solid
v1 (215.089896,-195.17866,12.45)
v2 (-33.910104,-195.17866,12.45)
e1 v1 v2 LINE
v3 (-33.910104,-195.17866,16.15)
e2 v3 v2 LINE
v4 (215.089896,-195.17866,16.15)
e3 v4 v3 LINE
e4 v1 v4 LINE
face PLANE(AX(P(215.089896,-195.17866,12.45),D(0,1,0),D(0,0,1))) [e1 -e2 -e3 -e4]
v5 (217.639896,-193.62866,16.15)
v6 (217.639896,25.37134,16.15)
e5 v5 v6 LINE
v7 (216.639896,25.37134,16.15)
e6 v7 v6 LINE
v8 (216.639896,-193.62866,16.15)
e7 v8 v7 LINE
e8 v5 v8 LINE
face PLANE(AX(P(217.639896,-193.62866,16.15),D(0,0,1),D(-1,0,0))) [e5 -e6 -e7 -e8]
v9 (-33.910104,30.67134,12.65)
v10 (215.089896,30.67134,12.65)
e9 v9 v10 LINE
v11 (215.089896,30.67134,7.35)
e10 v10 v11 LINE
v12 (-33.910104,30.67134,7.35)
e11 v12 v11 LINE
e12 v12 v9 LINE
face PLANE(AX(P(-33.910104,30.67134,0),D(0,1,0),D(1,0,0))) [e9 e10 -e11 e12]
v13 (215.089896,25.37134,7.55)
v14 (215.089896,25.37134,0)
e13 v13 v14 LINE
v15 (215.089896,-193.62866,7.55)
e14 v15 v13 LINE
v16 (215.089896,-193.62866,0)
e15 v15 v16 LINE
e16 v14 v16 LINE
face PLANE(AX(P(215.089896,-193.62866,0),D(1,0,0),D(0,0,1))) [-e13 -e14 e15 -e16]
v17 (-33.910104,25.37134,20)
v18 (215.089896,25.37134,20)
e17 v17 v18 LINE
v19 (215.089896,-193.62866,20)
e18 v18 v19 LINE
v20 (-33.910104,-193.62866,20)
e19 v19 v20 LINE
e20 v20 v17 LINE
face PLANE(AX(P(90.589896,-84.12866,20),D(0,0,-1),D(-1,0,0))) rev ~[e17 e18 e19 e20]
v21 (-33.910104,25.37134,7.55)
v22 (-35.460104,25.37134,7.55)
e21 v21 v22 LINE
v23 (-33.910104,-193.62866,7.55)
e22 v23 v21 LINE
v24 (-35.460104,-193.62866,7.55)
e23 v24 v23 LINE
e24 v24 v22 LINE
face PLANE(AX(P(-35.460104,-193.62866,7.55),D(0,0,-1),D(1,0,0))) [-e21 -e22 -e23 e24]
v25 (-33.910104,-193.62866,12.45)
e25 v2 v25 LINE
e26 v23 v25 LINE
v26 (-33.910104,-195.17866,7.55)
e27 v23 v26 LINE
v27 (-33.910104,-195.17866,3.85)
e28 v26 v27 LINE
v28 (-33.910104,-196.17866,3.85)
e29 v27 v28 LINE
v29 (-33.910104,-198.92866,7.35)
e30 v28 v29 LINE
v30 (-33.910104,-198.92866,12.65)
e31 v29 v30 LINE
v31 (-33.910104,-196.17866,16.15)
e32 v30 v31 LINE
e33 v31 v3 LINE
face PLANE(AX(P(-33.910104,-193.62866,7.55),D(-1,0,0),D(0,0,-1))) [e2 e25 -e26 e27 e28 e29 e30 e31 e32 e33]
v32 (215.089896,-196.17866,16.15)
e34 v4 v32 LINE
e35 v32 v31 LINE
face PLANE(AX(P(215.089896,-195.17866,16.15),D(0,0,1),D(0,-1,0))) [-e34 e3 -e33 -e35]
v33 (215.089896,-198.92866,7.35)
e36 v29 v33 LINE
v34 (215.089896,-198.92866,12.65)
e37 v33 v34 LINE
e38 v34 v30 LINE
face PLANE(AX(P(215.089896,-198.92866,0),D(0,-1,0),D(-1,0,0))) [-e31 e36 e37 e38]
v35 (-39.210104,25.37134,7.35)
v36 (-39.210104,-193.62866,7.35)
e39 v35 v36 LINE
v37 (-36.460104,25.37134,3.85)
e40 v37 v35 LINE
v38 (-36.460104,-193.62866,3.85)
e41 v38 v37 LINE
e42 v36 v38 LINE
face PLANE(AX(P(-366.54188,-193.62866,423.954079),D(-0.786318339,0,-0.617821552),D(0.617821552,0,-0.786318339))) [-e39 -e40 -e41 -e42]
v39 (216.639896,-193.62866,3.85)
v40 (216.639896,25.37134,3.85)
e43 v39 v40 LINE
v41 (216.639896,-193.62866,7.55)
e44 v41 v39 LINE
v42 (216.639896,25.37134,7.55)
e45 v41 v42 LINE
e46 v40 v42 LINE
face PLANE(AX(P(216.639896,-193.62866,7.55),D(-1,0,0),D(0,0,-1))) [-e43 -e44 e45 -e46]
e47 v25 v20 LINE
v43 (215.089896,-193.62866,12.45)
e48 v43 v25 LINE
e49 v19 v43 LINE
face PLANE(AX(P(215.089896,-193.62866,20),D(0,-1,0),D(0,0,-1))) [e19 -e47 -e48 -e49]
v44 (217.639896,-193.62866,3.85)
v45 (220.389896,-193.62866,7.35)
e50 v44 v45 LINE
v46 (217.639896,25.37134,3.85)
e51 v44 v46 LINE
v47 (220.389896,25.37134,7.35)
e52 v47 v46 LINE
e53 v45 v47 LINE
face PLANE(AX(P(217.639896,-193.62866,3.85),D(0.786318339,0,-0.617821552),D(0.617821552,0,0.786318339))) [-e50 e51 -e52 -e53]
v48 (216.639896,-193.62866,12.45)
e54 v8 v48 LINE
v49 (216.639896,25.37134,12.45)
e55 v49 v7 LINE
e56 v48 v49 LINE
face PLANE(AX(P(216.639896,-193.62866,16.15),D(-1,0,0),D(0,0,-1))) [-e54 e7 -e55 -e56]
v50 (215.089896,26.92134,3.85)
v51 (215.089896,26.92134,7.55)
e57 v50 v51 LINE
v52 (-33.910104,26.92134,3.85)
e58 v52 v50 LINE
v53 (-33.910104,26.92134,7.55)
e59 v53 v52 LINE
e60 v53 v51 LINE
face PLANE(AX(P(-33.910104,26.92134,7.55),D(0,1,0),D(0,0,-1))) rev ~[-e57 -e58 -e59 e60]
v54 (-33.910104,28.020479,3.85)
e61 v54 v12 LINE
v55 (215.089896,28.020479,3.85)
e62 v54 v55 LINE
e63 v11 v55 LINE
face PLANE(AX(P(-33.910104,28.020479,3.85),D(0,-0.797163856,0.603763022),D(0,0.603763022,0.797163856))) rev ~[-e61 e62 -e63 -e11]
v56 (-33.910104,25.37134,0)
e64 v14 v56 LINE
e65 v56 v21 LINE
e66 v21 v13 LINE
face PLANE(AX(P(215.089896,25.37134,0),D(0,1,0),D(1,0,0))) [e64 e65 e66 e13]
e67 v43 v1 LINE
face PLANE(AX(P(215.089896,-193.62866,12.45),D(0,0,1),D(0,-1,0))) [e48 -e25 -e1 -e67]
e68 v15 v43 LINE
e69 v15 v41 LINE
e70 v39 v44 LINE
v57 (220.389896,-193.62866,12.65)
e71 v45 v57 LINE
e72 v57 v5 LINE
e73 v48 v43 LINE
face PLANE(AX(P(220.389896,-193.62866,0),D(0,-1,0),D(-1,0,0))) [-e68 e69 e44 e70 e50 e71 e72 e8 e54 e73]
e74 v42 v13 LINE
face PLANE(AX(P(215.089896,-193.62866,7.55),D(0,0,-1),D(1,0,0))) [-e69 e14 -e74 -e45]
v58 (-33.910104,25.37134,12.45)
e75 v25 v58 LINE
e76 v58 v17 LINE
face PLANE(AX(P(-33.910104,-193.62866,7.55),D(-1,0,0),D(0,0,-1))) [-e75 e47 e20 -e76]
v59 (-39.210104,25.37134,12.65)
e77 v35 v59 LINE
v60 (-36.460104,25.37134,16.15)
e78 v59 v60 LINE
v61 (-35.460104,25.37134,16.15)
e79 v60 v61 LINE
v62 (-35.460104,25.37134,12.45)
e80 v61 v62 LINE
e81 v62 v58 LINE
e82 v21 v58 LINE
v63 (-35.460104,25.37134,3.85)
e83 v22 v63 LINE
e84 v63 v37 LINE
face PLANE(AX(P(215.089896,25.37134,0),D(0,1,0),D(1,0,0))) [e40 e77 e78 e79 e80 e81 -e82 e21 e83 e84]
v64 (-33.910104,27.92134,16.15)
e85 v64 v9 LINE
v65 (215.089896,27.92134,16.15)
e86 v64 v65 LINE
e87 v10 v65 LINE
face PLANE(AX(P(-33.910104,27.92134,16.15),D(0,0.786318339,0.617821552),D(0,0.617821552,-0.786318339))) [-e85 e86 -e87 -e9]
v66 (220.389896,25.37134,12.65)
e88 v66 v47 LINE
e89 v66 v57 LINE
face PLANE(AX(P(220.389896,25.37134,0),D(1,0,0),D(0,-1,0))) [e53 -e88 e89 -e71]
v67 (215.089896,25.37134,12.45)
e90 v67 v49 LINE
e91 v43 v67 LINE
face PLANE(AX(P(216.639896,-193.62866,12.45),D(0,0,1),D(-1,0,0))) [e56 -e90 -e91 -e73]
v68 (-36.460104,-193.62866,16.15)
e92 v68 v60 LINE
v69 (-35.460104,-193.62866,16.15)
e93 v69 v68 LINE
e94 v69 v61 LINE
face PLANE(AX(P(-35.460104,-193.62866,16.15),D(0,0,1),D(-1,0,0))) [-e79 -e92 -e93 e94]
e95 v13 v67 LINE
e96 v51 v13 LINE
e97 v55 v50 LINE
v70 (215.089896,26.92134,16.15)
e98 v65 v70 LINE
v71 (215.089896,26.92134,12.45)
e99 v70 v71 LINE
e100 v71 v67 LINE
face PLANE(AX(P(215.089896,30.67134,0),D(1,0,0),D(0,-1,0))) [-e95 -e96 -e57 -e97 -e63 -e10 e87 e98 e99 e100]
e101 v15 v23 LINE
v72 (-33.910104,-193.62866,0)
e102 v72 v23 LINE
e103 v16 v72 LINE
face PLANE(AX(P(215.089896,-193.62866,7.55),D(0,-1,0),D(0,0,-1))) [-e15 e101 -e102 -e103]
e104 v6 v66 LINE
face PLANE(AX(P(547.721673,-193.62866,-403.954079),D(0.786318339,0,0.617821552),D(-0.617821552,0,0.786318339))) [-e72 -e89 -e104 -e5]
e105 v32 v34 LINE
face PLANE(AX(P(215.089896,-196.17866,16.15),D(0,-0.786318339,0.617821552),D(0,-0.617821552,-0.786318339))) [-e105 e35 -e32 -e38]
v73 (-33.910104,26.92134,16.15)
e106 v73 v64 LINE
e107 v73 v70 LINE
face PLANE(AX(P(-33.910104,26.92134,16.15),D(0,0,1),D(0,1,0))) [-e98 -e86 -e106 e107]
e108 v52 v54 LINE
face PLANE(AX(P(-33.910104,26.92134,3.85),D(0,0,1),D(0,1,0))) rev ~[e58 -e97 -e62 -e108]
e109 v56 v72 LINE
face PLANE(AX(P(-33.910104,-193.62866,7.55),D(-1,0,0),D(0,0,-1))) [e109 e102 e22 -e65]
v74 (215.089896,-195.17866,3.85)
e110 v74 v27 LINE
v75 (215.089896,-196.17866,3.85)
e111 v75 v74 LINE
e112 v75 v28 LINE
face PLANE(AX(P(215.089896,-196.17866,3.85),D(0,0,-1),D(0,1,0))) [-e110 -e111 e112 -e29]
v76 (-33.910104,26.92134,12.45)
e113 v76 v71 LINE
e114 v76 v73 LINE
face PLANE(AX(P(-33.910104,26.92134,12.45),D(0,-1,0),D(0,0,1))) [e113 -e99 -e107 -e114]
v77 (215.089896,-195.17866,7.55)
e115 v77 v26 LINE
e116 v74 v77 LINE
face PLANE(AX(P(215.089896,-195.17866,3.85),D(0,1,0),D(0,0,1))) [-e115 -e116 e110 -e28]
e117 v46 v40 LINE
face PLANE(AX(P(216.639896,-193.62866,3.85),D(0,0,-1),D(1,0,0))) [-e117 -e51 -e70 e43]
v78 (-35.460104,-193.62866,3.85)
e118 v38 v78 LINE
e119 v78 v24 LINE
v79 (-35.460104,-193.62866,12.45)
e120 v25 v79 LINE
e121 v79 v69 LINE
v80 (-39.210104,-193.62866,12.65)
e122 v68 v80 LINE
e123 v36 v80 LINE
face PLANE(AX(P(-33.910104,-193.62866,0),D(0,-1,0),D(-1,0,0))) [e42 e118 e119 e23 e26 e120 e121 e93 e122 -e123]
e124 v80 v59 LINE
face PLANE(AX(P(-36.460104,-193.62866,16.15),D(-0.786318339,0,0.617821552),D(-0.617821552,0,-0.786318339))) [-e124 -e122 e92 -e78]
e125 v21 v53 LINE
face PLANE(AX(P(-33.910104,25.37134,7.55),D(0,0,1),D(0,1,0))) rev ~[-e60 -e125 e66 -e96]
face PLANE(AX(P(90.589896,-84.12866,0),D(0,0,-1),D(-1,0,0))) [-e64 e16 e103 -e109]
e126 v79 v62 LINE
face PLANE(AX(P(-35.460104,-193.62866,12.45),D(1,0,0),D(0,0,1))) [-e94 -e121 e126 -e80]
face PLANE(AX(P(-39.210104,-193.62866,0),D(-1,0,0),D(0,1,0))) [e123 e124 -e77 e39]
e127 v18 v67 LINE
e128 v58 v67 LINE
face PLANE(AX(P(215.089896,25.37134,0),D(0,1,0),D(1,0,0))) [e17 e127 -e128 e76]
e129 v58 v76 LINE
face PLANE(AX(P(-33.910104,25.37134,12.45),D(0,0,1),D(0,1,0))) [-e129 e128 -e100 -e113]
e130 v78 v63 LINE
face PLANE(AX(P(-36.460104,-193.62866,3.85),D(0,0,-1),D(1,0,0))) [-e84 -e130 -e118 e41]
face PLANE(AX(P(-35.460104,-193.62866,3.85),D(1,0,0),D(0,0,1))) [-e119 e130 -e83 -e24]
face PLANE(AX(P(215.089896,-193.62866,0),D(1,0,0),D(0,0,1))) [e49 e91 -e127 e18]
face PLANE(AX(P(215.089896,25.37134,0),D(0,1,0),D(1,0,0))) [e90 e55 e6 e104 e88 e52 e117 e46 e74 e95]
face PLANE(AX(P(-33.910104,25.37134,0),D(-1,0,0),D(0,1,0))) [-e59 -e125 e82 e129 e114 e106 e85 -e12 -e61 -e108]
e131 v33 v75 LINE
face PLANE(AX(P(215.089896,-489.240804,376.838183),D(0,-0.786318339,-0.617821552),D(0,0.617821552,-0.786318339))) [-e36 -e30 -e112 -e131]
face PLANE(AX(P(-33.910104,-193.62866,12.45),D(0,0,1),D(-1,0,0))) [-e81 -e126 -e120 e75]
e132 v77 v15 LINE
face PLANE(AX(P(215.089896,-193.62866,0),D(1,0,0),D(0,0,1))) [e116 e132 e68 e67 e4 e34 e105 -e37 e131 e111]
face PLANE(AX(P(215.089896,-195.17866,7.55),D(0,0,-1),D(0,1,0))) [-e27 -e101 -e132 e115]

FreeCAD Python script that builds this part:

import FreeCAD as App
import Part
import Sketcher
from FreeCAD import Vector
Q = App.Units.Quantity

doc = App.newDocument("Part")
body = doc.addObject("PartDesign::Body", "Body")

# Sketch on XY plane
sketch1 = body.newObject("Sketcher::SketchObject", "Sketch")
sketch1.AttachmentSupport = (doc.getObject("XY_Plane"), [""])
sketch1.MapMode = "FlatFace"
sketch1.addGeometry([
    Part.LineSegment(Vector(215, 31, 0), Vector(-34, 31, 0)),  # 0
    Part.LineSegment(Vector(-34, 31, 0), Vector(-34, 25, 0)),  # 1
    Part.LineSegment(Vector(-34, 25, 0), Vector(-39, 25, 0)),  # 2
    Part.LineSegment(Vector(-39, 25, 0), Vector(-39, -194, 0)),  # 3
    Part.LineSegment(Vector(-39, -194, 0), Vector(-34, -194, 0)),  # 4
    Part.LineSegment(Vector(-34, -194, 0), Vector(-34, -199, 0)),  # 5
    Part.LineSegment(Vector(-34, -199, 0), Vector(215, -199, 0)),  # 6
    Part.LineSegment(Vector(215, -199, 0), Vector(215, -194, 0)),  # 7
    Part.LineSegment(Vector(215, -194, 0), Vector(220, -194, 0)),  # 8
    Part.LineSegment(Vector(220, -194, 0), Vector(220, 25, 0)),  # 9
    Part.LineSegment(Vector(220, 25, 0), Vector(215, 25, 0)),  # 10
    Part.LineSegment(Vector(215, 25, 0), Vector(215, 31, 0)),  # 11
], False)
sketch1.addConstraint([
    Sketcher.Constraint("Coincident", 0, 2, 1, 1),
    Sketcher.Constraint("Coincident", 1, 2, 2, 1),
    Sketcher.Constraint("Coincident", 2, 2, 3, 1),
    Sketcher.Constraint("Coincident", 3, 2, 4, 1),
    Sketcher.Constraint("Coincident", 4, 2, 5, 1),
    Sketcher.Constraint("Coincident", 5, 2, 6, 1),
    Sketcher.Constraint("Coincident", 6, 2, 7, 1),
    Sketcher.Constraint("Coincident", 7, 2, 8, 1),
    Sketcher.Constraint("Coincident", 8, 2, 9, 1),
    Sketcher.Constraint("Coincident", 9, 2, 10, 1),
    Sketcher.Constraint("Coincident", 10, 2, 11, 1),
    Sketcher.Constraint("Coincident", 11, 2, 0, 1),
    Sketcher.Constraint("Horizontal", 0),
    Sketcher.Constraint("Vertical", 1),
    Sketcher.Constraint("Horizontal", 2),
    Sketcher.Constraint("Vertical", 3),
    Sketcher.Constraint("Horizontal", 4),
    Sketcher.Constraint("Vertical", 5),
    Sketcher.Constraint("Horizontal", 6),
    Sketcher.Constraint("Vertical", 7),
    Sketcher.Constraint("Horizontal", 8),
    Sketcher.Constraint("Vertical", 9),
    Sketcher.Constraint("Horizontal", 10),
    Sketcher.Constraint("Vertical", 11),
    Sketcher.Constraint("Horizontal", 4, 2, 7, 2),
    Sketcher.Constraint("Horizontal", 2, 2, 9, 2),
    Sketcher.Constraint("Vertical", 1, 2, 4, 2),
    Sketcher.Constraint("Vertical", 7, 2, 10, 2),
    Sketcher.Constraint("Equal", 4, 8),
    Sketcher.Constraint("Equal", 10, 1),
    Sketcher.Constraint("Equal", 1, 5),
    Sketcher.Constraint("DistanceX", 0, 2, 0, 1, Q("249 mm")),
    Sketcher.Constraint("DistanceY", 3, 2, 3, 1, Q("219 mm")),
    Sketcher.Constraint("DistanceX", 2, 2, 2, 1, Q("5.3 mm")),
    Sketcher.Constraint("DistanceY", -1, 1, 0, 2, Q("30.67134 mm")),
    Sketcher.Constraint("DistanceX", 0, 2, -1, 1, Q("33.910104 mm")),
])
pad1 = body.newObject("PartDesign::Pad", "Pad")
pad1.Profile = sketch1
pad1.Length = 20

# Sketch on YZ plane
sketch2 = body.newObject("Sketcher::SketchObject", "Sketch001")
sketch2.AttachmentSupport = (doc.getObject("YZ_Plane"), [""])
sketch2.MapMode = "FlatFace"
sketch2.AttachmentOffset = App.Placement(Vector(0, 0, 215.089896), App.Rotation())
sketch2.addGeometry([
    Part.LineSegment(Vector(25.4, 489.9, 0), Vector(25.4, 12.4, 0)),  # 0
    Part.LineSegment(Vector(25.4, 12.4, 0), Vector(26.9, 12.4, 0)),  # 1
    Part.LineSegment(Vector(26.9, 12.4, 0), Vector(26.9, 16.1, 0)),  # 2
    Part.LineSegment(Vector(26.9, 16.1, 0), Vector(27.9, 16.1, 0)),  # 3
    Part.LineSegment(Vector(27.9, 16.1, 0), Vector(321, -356.8, 0)),  # 4
    Part.LineSegment(Vector(321, -356.8, 0), Vector(1208.3, -47.1, 0)),  # 5
    Part.LineSegment(Vector(1208.3, -47.1, 0), Vector(912.6, 799.7, 0)),  # 6
    Part.LineSegment(Vector(912.6, 799.7, 0), Vector(25.4, 489.9, 0)),  # 7
], False)
sketch2.addConstraint([
    Sketcher.Constraint("Coincident", 0, 2, 1, 1),
    Sketcher.Constraint("Coincident", 1, 2, 2, 1),
    Sketcher.Constraint("Coincident", 2, 2, 3, 1),
    Sketcher.Constraint("Coincident", 3, 2, 4, 1),
    Sketcher.Constraint("Coincident", 4, 2, 5, 1),
    Sketcher.Constraint("Coincident", 5, 2, 6, 1),
    Sketcher.Constraint("Coincident", 6, 2, 7, 1),
    Sketcher.Constraint("Coincident", 7, 2, 0, 1),
    Sketcher.Constraint("Vertical", 0),
    Sketcher.Constraint("Horizontal", 1),
    Sketcher.Constraint("Vertical", 2),
    Sketcher.Constraint("Horizontal", 3),
    Sketcher.Constraint("Perpendicular", 5, 6),
    Sketcher.Constraint("Perpendicular", 6, 7),
    Sketcher.Constraint("Equal", 5, 7),
    Sketcher.Constraint("DistanceX", 3, 1, 3, 2, Q("1 mm")),
    Sketcher.Constraint("DistanceY", 2, 1, 2, 2, Q("3.7 mm")),
    Sketcher.Constraint("DistanceX", 1, 1, 1, 2, Q("1.55 mm")),
    Sketcher.Constraint("DistanceY", -1, 1, 0, 2, Q("12.45 mm")),
    Sketcher.Constraint("DistanceY", 0, 2, 0, 1, Q("477.446434 mm")),
    Sketcher.Constraint("DistanceX", -1, 1, 0, 2, Q("25.37134 mm")),
    Sketcher.Constraint("DistanceX", -1, 1, 5, 2, Q("1208.25797 mm")),
    Sketcher.Constraint("DistanceY", 4, 2, 5, 2, Q("309.76543 mm")),
    Sketcher.Constraint("Distance", 4, Q("474.347557 mm")),
])
pocket1 = body.newObject("PartDesign::Pocket", "Pocket")
pocket1.Profile = sketch2
pocket1.Type = "ThroughAll"
pocket1.Midplane = True

# Sketch on YZ plane
sketch3 = body.newObject("Sketcher::SketchObject", "Sketch002")
sketch3.AttachmentSupport = (doc.getObject("YZ_Plane"), [""])
sketch3.MapMode = "FlatFace"
sketch3.AttachmentOffset = App.Placement(Vector(0, 0, 215.089896), App.Rotation())
sketch3.addGeometry([
    Part.LineSegment(Vector(25.4, 7.5, 0), Vector(25.4, -469.9, 0)),  # 0
    Part.LineSegment(Vector(25.4, -469.9, 0), Vector(915.3, -771.8, 0)),  # 1
    Part.LineSegment(Vector(915.3, -771.8, 0), Vector(1204.3, 80, 0)),  # 2
    Part.LineSegment(Vector(1204.3, 80, 0), Vector(314.4, 381.9, 0)),  # 3
    Part.LineSegment(Vector(314.4, 381.9, 0), Vector(30.7, 7.3, 0)),  # 4
    Part.LineSegment(Vector(30.7, 7.3, 0), Vector(28, 3.9, 0)),  # 5
    Part.LineSegment(Vector(28, 3.9, 0), Vector(26.9, 3.9, 0)),  # 6
    Part.LineSegment(Vector(26.9, 3.9, 0), Vector(26.9, 7.5, 0)),  # 7
    Part.LineSegment(Vector(26.9, 7.5, 0), Vector(25.4, 7.5, 0)),  # 8
], False)
sketch3.addConstraint([
    Sketcher.Constraint("Coincident", 0, 2, 1, 1),
    Sketcher.Constraint("Coincident", 1, 2, 2, 1),
    Sketcher.Constraint("Coincident", 2, 2, 3, 1),
    Sketcher.Constraint("Coincident", 3, 2, 4, 1),
    Sketcher.Constraint("Coincident", 4, 2, 5, 1),
    Sketcher.Constraint("Coincident", 5, 2, 6, 1),
    Sketcher.Constraint("Coincident", 6, 2, 7, 1),
    Sketcher.Constraint("Coincident", 7, 2, 8, 1),
    Sketcher.Constraint("Coincident", 8, 2, 0, 1),
    Sketcher.Constraint("Vertical", 0),
    Sketcher.Constraint("Horizontal", 6),
    Sketcher.Constraint("Vertical", 7),
    Sketcher.Constraint("Horizontal", 8),
    Sketcher.Constraint("Perpendicular", 1, 2),
    Sketcher.Constraint("Perpendicular", 2, 3),
    Sketcher.Constraint("Parallel", 4, 5),
    Sketcher.Constraint("Equal", 1, 3),
    Sketcher.Constraint("DistanceY", 7, 1, 7, 2, Q("3.7 mm")),
    Sketcher.Constraint("DistanceX", 8, 2, 8, 1, Q("1.55 mm")),
    Sketcher.Constraint("DistanceX", 0, 2, 4, 2, Q("5.3 mm")),
    Sketcher.Constraint("DistanceY", 5, 2, 4, 2, Q("3.5 mm")),
    Sketcher.Constraint("DistanceY", -1, 1, 4, 2, Q("7.35 mm")),
    Sketcher.Constraint("DistanceX", 6, 2, 6, 1, Q("1.099139 mm")),
    Sketcher.Constraint("DistanceX", -1, 1, 1, 2, Q("915.337699 mm")),
    Sketcher.Constraint("DistanceY", -1, 1, 2, 2, Q("79.989898 mm")),
    Sketcher.Constraint("DistanceY", 0, 2, 0, 1, Q("477.446434 mm")),
    Sketcher.Constraint("DistanceX", -1, 1, 0, 2, Q("25.37134 mm")),
])
pocket2 = body.newObject("PartDesign::Pocket", "Pocket001")
pocket2.Profile = sketch3
pocket2.Type = "ThroughAll"
pocket2.Midplane = True

# Sketch on XZ plane
sketch4 = body.newObject("Sketcher::SketchObject", "Sketch003")
sketch4.AttachmentSupport = (doc.getObject("XZ_Plane"), [""])
sketch4.MapMode = "FlatFace"
sketch4.AttachmentOffset = App.Placement(Vector(0, 0, -25.37134), App.Rotation())
sketch4.addGeometry([
    Part.LineSegment(Vector(215.1, 0, 0), Vector(215.1, 7.5, 0)),  # 0
    Part.LineSegment(Vector(215.1, 7.5, 0), Vector(216.6, 7.5, 0)),  # 1
    Part.LineSegment(Vector(216.6, 7.5, 0), Vector(216.6, 3.9, 0)),  # 2
    Part.LineSegment(Vector(216.6, 3.9, 0), Vector(217.6, 3.9, 0)),  # 3
    Part.LineSegment(Vector(217.6, 3.9, 0), Vector(220.4, 7.3, 0)),  # 4
    Part.LineSegment(Vector(220.4, 7.3, 0), Vector(220.4, 0, 0)),  # 5
    Part.LineSegment(Vector(220.4, 0, 0), Vector(215.1, 0, 0)),  # 6
], False)
sketch4.addConstraint([
    Sketcher.Constraint("Coincident", 0, 2, 1, 1),
    Sketcher.Constraint("Coincident", 1, 2, 2, 1),
    Sketcher.Constraint("Coincident", 2, 2, 3, 1),
    Sketcher.Constraint("Coincident", 3, 2, 4, 1),
    Sketcher.Constraint("Coincident", 4, 2, 5, 1),
    Sketcher.Constraint("Coincident", 5, 2, 6, 1),
    Sketcher.Constraint("Coincident", 6, 2, 0, 1),
    Sketcher.Constraint("Vertical", 0),
    Sketcher.Constraint("Horizontal", 1),
    Sketcher.Constraint("Vertical", 2),
    Sketcher.Constraint("Horizontal", 3),
    Sketcher.Constraint("Vertical", 5),
    Sketcher.Constraint("Horizontal", 6),
    Sketcher.Constraint("PointOnObject", 5, 2, -1),
    Sketcher.Constraint("DistanceX", 3, 1, 3, 2, Q("1 mm")),
    Sketcher.Constraint("DistanceX", 6, 2, 6, 1, Q("5.3 mm")),
    Sketcher.Constraint("DistanceY", 2, 2, 2, 1, Q("3.7 mm")),
    Sketcher.Constraint("DistanceX", 1, 1, 1, 2, Q("1.55 mm")),
    Sketcher.Constraint("DistanceY", 0, 1, 0, 2, Q("7.55 mm")),
    Sketcher.Constraint("DistanceY", 5, 2, 5, 1, Q("7.35 mm")),
    Sketcher.Constraint("DistanceX", -1, 1, 0, 2, Q("215.089896 mm")),
])
pocket3 = body.newObject("PartDesign::Pocket", "Pocket002")
pocket3.Profile = sketch4
pocket3.Type = "ThroughAll"
pocket3.Midplane = True

# Sketch on XZ plane
sketch5 = body.newObject("Sketcher::SketchObject", "Sketch004")
sketch5.AttachmentSupport = (doc.getObject("XZ_Plane"), [""])
sketch5.MapMode = "FlatFace"
sketch5.AttachmentOffset = App.Placement(Vector(0, 0, -25.37134), App.Rotation())
sketch5.addGeometry([
    Part.LineSegment(Vector(547.7, -404, 0), Vector(217.6, 16.1, 0)),  # 0
    Part.LineSegment(Vector(217.6, 16.1, 0), Vector(216.6, 16.1, 0)),  # 1
    Part.LineSegment(Vector(216.6, 16.1, 0), Vector(216.6, 12.4, 0)),  # 2
    Part.LineSegment(Vector(216.6, 12.4, 0), Vector(215.1, 12.4, 0)),  # 3
    Part.LineSegment(Vector(215.1, 12.4, 0), Vector(215.1, 549.8, 0)),  # 4
    Part.LineSegment(Vector(215.1, 549.8, 0), Vector(1215.6, 898.8, 0)),  # 5
    Part.LineSegment(Vector(1215.6, 898.8, 0), Vector(1548.3, -55, 0)),  # 6
    Part.LineSegment(Vector(1548.3, -55, 0), Vector(547.7, -404, 0)),  # 7
], False)
sketch5.addConstraint([
    Sketcher.Constraint("Coincident", 0, 2, 1, 1),
    Sketcher.Constraint("Coincident", 1, 2, 2, 1),
    Sketcher.Constraint("Coincident", 2, 2, 3, 1),
    Sketcher.Constraint("Coincident", 3, 2, 4, 1),
    Sketcher.Constraint("Coincident", 4, 2, 5, 1),
    Sketcher.Constraint("Coincident", 5, 2, 6, 1),
    Sketcher.Constraint("Coincident", 6, 2, 7, 1),
    Sketcher.Constraint("Coincident", 7, 2, 0, 1),
    Sketcher.Constraint("Horizontal", 1),
    Sketcher.Constraint("Vertical", 2),
    Sketcher.Constraint("Horizontal", 3),
    Sketcher.Constraint("Vertical", 4),
    Sketcher.Constraint("Perpendicular", 5, 6),
    Sketcher.Constraint("Perpendicular", 6, 7),
    Sketcher.Constraint("Equal", 5, 7),
    Sketcher.Constraint("DistanceX", 1, 2, 1, 1, Q("1 mm")),
    Sketcher.Constraint("DistanceY", 2, 2, 2, 1, Q("3.7 mm")),
    Sketcher.Constraint("DistanceX", 3, 2, 3, 1, Q("1.55 mm")),
    Sketcher.Constraint("DistanceY", -1, 1, 0, 2, Q("16.15 mm")),
    Sketcher.Constraint("Distance", 5, Q("1059.632108 mm")),
    Sketcher.Constraint("Distance", 6, Q("1010.109581 mm")),
    Sketcher.Constraint("DistanceY", 4, 1, 4, 2, Q("537.366054 mm")),
    Sketcher.Constraint("DistanceX", -1, 1, 5, 2, Q("1215.620409 mm")),
    Sketcher.Constraint("DistanceY", -1, 1, 5, 2, Q("898.755731 mm")),
])
pocket4 = body.newObject("PartDesign::Pocket", "Pocket003")
pocket4.Profile = sketch5
pocket4.Type = "ThroughAll"
pocket4.Midplane = True

# Sketch on XZ plane
sketch6 = body.newObject("Sketcher::SketchObject", "Sketch005")
sketch6.AttachmentSupport = (doc.getObject("XZ_Plane"), [""])
sketch6.MapMode = "FlatFace"
sketch6.AttachmentOffset = App.Placement(Vector(0, 0, -25.37134), App.Rotation())
sketch6.addGeometry([
    Part.LineSegment(Vector(-33.9, 20, 0), Vector(-33.9, 12.4, 0)),  # 0
    Part.LineSegment(Vector(-33.9, 12.4, 0), Vector(-35.5, 12.4, 0)),  # 1
    Part.LineSegment(Vector(-35.5, 12.4, 0), Vector(-35.5, 16.1, 0)),  # 2
    Part.LineSegment(Vector(-35.5, 16.1, 0), Vector(-36.5, 16.1, 0)),  # 3
    Part.LineSegment(Vector(-36.5, 16.1, 0), Vector(-39.2, 12.7, 0)),  # 4
    Part.LineSegment(Vector(-39.2, 12.7, 0), Vector(-39.2, 20, 0)),  # 5
    Part.LineSegment(Vector(-39.2, 20, 0), Vector(-33.9, 20, 0)),  # 6
], False)
sketch6.addConstraint([
    Sketcher.Constraint("Coincident", 0, 2, 1, 1),
    Sketcher.Constraint("Coincident", 1, 2, 2, 1),
    Sketcher.Constraint("Coincident", 2, 2, 3, 1),
    Sketcher.Constraint("Coincident", 3, 2, 4, 1),
    Sketcher.Constraint("Coincident", 4, 2, 5, 1),
    Sketcher.Constraint("Coincident", 5, 2, 6, 1),
    Sketcher.Constraint("Coincident", 6, 2, 0, 1),
    Sketcher.Constraint("Vertical", 0),
    Sketcher.Constraint("Horizontal", 1),
    Sketcher.Constraint("Vertical", 2),
    Sketcher.Constraint("Horizontal", 3),
    Sketcher.Constraint("Vertical", 5),
    Sketcher.Constraint("Horizontal", 6),
    Sketcher.Constraint("DistanceX", 3, 2, 3, 1, Q("1 mm")),
    Sketcher.Constraint("DistanceX", 6, 1, 6, 2, Q("5.3 mm")),
    Sketcher.Constraint("DistanceY", 2, 1, 2, 2, Q("3.7 mm")),
    Sketcher.Constraint("DistanceY", -1, 1, 5, 2, Q("20 mm")),
    Sketcher.Constraint("DistanceX", 1, 2, 1, 1, Q("1.55 mm")),
    Sketcher.Constraint("DistanceY", 0, 2, 0, 1, Q("7.55 mm")),
    Sketcher.Constraint("DistanceY", 5, 1, 5, 2, Q("7.35 mm")),
    Sketcher.Constraint("DistanceX", 0, 2, -1, 1, Q("33.910104 mm")),
])
pocket5 = body.newObject("PartDesign::Pocket", "Pocket004")
pocket5.Profile = sketch6
pocket5.Type = "ThroughAll"
pocket5.Midplane = True

# Sketch on XZ plane
sketch7 = body.newObject("Sketcher::SketchObject", "Sketch006")
sketch7.AttachmentSupport = (doc.getObject("XZ_Plane"), [""])
sketch7.MapMode = "FlatFace"
sketch7.AttachmentOffset = App.Placement(Vector(0, 0, -25.37134), App.Rotation())
sketch7.addGeometry([
    Part.LineSegment(Vector(-366.5, 424, 0), Vector(-36.5, 3.9, 0)),  # 0
    Part.LineSegment(Vector(-36.5, 3.9, 0), Vector(-35.5, 3.9, 0)),  # 1
    Part.LineSegment(Vector(-35.5, 3.9, 0), Vector(-35.5, 7.5, 0)),  # 2
    Part.LineSegment(Vector(-35.5, 7.5, 0), Vector(-33.9, 7.5, 0)),  # 3
    Part.LineSegment(Vector(-33.9, 7.5, 0), Vector(-33.9, -529.8, 0)),  # 4
    Part.LineSegment(Vector(-33.9, -529.8, 0), Vector(-1034.4, -878.8, 0)),  # 5
    Part.LineSegment(Vector(-1034.4, -878.8, 0), Vector(-1367.1, 75, 0)),  # 6
    Part.LineSegment(Vector(-1367.1, 75, 0), Vector(-366.5, 424, 0)),  # 7
], False)
sketch7.addConstraint([
    Sketcher.Constraint("Coincident", 0, 2, 1, 1),
    Sketcher.Constraint("Coincident", 1, 2, 2, 1),
    Sketcher.Constraint("Coincident", 2, 2, 3, 1),
    Sketcher.Constraint("Coincident", 3, 2, 4, 1),
    Sketcher.Constraint("Coincident", 4, 2, 5, 1),
    Sketcher.Constraint("Coincident", 5, 2, 6, 1),
    Sketcher.Constraint("Coincident", 6, 2, 7, 1),
    Sketcher.Constraint("Coincident", 7, 2, 0, 1),
    Sketcher.Constraint("Horizontal", 1),
    Sketcher.Constraint("Vertical", 2),
    Sketcher.Constraint("Horizontal", 3),
    Sketcher.Constraint("Vertical", 4),
    Sketcher.Constraint("Perpendicular", 5, 6),
    Sketcher.Constraint("Perpendicular", 6, 7),
    Sketcher.Constraint("Equal", 5, 7),
    Sketcher.Constraint("DistanceX", 1, 1, 1, 2, Q("1 mm")),
    Sketcher.Constraint("DistanceY", 2, 1, 2, 2, Q("3.7 mm")),
    Sketcher.Constraint("DistanceX", 3, 1, 3, 2, Q("1.55 mm")),
    Sketcher.Constraint("DistanceY", -1, 1, 0, 2, Q("3.85 mm")),
    Sketcher.Constraint("Distance", 5, Q("1059.632108 mm")),
    Sketcher.Constraint("Distance", 6, Q("1010.109581 mm")),
    Sketcher.Constraint("DistanceY", 4, 2, 4, 1, Q("537.366054 mm")),
    Sketcher.Constraint("DistanceY", 5, 2, -1, 1, Q("878.755731 mm")),
    Sketcher.Constraint("DistanceX", 7, 2, -1, 1, Q("366.54188 mm")),
])
pocket6 = body.newObject("PartDesign::Pocket", "Pocket005")
pocket6.Profile = sketch7
pocket6.Type = "ThroughAll"
pocket6.Midplane = True

# Sketch on YZ plane
sketch8 = body.newObject("Sketcher::SketchObject", "Sketch007")
sketch8.AttachmentSupport = (doc.getObject("YZ_Plane"), [""])
sketch8.MapMode = "FlatFace"
sketch8.AttachmentOffset = App.Placement(Vector(0, 0, -33.910104), App.Rotation())
sketch8.addGeometry([
    Part.LineSegment(Vector(-193.6, 20, 0), Vector(-193.6, 12.4, 0)),  # 0
    Part.LineSegment(Vector(-193.6, 12.4, 0), Vector(-195.2, 12.4, 0)),  # 1
    Part.LineSegment(Vector(-195.2, 12.4, 0), Vector(-195.2, 16.1, 0)),  # 2
    Part.LineSegment(Vector(-195.2, 16.1, 0), Vector(-196.2, 16.1, 0)),  # 3
    Part.LineSegment(Vector(-196.2, 16.1, 0), Vector(-198.9, 12.7, 0)),  # 4
    Part.LineSegment(Vector(-198.9, 12.7, 0), Vector(-198.9, 20, 0)),  # 5
    Part.LineSegment(Vector(-198.9, 20, 0), Vector(-193.6, 20, 0)),  # 6
], False)
sketch8.addConstraint([
    Sketcher.Constraint("Coincident", 0, 2, 1, 1),
    Sketcher.Constraint("Coincident", 1, 2, 2, 1),
    Sketcher.Constraint("Coincident", 2, 2, 3, 1),
    Sketcher.Constraint("Coincident", 3, 2, 4, 1),
    Sketcher.Constraint("Coincident", 4, 2, 5, 1),
    Sketcher.Constraint("Coincident", 5, 2, 6, 1),
    Sketcher.Constraint("Coincident", 6, 2, 0, 1),
    Sketcher.Constraint("Vertical", 0),
    Sketcher.Constraint("Horizontal", 1),
    Sketcher.Constraint("Vertical", 2),
    Sketcher.Constraint("Horizontal", 3),
    Sketcher.Constraint("Vertical", 5),
    Sketcher.Constraint("Horizontal", 6),
    Sketcher.Constraint("DistanceX", 3, 2, 3, 1, Q("1 mm")),
    Sketcher.Constraint("DistanceX", 6, 1, 6, 2, Q("5.3 mm")),
    Sketcher.Constraint("DistanceY", 2, 1, 2, 2, Q("3.7 mm")),
    Sketcher.Constraint("DistanceY", -1, 1, 5, 2, Q("20 mm")),
    Sketcher.Constraint("DistanceX", 1, 2, 1, 1, Q("1.55 mm")),
    Sketcher.Constraint("DistanceY", 0, 2, 0, 1, Q("7.55 mm")),
    Sketcher.Constraint("DistanceY", 5, 1, 5, 2, Q("7.35 mm")),
    Sketcher.Constraint("DistanceX", 0, 2, -1, 1, Q("193.62866 mm")),
])
pocket7 = body.newObject("PartDesign::Pocket", "Pocket006")
pocket7.Profile = sketch8
pocket7.Type = "ThroughAll"
pocket7.Midplane = True

# Sketch on YZ plane
sketch9 = body.newObject("Sketcher::SketchObject", "Sketch008")
sketch9.AttachmentSupport = (doc.getObject("YZ_Plane"), [""])
sketch9.MapMode = "FlatFace"
sketch9.AttachmentOffset = App.Placement(Vector(0, 0, -33.910104), App.Rotation())
sketch9.addGeometry([
    Part.LineSegment(Vector(-489.2, 376.8, 0), Vector(-196.2, 3.9, 0)),  # 0
    Part.LineSegment(Vector(-196.2, 3.9, 0), Vector(-195.2, 3.9, 0)),  # 1
    Part.LineSegment(Vector(-195.2, 3.9, 0), Vector(-195.2, 7.5, 0)),  # 2
    Part.LineSegment(Vector(-195.2, 7.5, 0), Vector(-193.6, 7.5, 0)),  # 3
    Part.LineSegment(Vector(-193.6, 7.5, 0), Vector(-193.6, -469.9, 0)),  # 4
    Part.LineSegment(Vector(-193.6, -469.9, 0), Vector(-1080.9, -779.7, 0)),  # 5
    Part.LineSegment(Vector(-1080.9, -779.7, 0), Vector(-1376.5, 67.1, 0)),  # 6
    Part.LineSegment(Vector(-1376.5, 67.1, 0), Vector(-489.2, 376.8, 0)),  # 7
], False)
sketch9.addConstraint([
    Sketcher.Constraint("Coincident", 0, 2, 1, 1),
    Sketcher.Constraint("Coincident", 1, 2, 2, 1),
    Sketcher.Constraint("Coincident", 2, 2, 3, 1),
    Sketcher.Constraint("Coincident", 3, 2, 4, 1),
    Sketcher.Constraint("Coincident", 4, 2, 5, 1),
    Sketcher.Constraint("Coincident", 5, 2, 6, 1),
    Sketcher.Constraint("Coincident", 6, 2, 7, 1),
    Sketcher.Constraint("Coincident", 7, 2, 0, 1),
    Sketcher.Constraint("Horizontal", 1),
    Sketcher.Constraint("Vertical", 2),
    Sketcher.Constraint("Horizontal", 3),
    Sketcher.Constraint("Vertical", 4),
    Sketcher.Constraint("Perpendicular", 5, 6),
    Sketcher.Constraint("Perpendicular", 6, 7),
    Sketcher.Constraint("Equal", 5, 7),
    Sketcher.Constraint("DistanceX", 1, 1, 1, 2, Q("1 mm")),
    Sketcher.Constraint("DistanceY", 2, 1, 2, 2, Q("3.7 mm")),
    Sketcher.Constraint("DistanceX", 3, 1, 3, 2, Q("1.55 mm")),
    Sketcher.Constraint("DistanceY", -1, 1, 0, 2, Q("3.85 mm")),
    Sketcher.Constraint("DistanceY", 4, 2, 4, 1, Q("477.446434 mm")),
    Sketcher.Constraint("DistanceX", 0, 2, -1, 1, Q("196.17866 mm")),
    Sketcher.Constraint("DistanceX", 6, 2, -1, 1, Q("1376.51529 mm")),
    Sketcher.Constraint("DistanceY", 5, 2, 4, 2, Q("309.76543 mm")),
    Sketcher.Constraint("Distance", 0, Q("474.347557 mm")),
])
pocket8 = body.newObject("PartDesign::Pocket", "Pocket007")
pocket8.Profile = sketch9
pocket8.Type = "ThroughAll"
pocket8.Midplane = True

doc.recompute()
